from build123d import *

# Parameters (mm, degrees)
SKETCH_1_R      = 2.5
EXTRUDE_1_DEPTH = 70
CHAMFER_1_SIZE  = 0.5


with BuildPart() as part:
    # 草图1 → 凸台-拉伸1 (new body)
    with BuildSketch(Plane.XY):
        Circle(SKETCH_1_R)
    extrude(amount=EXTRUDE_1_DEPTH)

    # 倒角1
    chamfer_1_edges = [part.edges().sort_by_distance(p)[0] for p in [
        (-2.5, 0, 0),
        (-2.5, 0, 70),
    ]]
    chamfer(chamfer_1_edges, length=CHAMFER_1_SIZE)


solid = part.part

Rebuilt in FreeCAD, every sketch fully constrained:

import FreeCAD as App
import Part
import Sketcher
Q = App.Units.Quantity


def edges_at(feature, points):
    """Names of the edges that pass closest to the given points."""
    edges = feature.Shape.Edges
    near = lambda p: min(range(len(edges)), key=lambda i: edges[i].distToShape(Part.Vertex(*p))[0])
    return sorted({f"Edge{near(p) + 1}" for p in points})

doc = App.newDocument("Part")
body = doc.addObject("PartDesign::Body", "Body")

# Sketch on XY plane
sketch1 = body.newObject("Sketcher::SketchObject", "Sketch")
sketch1.AttachmentSupport = (doc.getObject("XY_Plane"), [""])
sketch1.MapMode = "FlatFace"
sketch1.addGeometry(Part.Circle(App.Vector(0, 0, 0), App.Vector(0, 0, 1), 2.5), False)
sketch1.addConstraint(Sketcher.Constraint("Coincident", 0, 3, -1, 1))
sketch1.addConstraint(Sketcher.Constraint("Diameter", 0, Q("5 mm")))
pad1 = body.newObject("PartDesign::Pad", "Pad")
pad1.Profile = sketch1
pad1.Length = 70
doc.recompute()

chamfer = body.newObject("PartDesign::Chamfer", "Chamfer")
chamfer.Base = (pad1, edges_at(pad1, [(-2.5, 0, 0), (-2.5, 0, 70)]))
chamfer.Size = 0.5

doc.recompute()
